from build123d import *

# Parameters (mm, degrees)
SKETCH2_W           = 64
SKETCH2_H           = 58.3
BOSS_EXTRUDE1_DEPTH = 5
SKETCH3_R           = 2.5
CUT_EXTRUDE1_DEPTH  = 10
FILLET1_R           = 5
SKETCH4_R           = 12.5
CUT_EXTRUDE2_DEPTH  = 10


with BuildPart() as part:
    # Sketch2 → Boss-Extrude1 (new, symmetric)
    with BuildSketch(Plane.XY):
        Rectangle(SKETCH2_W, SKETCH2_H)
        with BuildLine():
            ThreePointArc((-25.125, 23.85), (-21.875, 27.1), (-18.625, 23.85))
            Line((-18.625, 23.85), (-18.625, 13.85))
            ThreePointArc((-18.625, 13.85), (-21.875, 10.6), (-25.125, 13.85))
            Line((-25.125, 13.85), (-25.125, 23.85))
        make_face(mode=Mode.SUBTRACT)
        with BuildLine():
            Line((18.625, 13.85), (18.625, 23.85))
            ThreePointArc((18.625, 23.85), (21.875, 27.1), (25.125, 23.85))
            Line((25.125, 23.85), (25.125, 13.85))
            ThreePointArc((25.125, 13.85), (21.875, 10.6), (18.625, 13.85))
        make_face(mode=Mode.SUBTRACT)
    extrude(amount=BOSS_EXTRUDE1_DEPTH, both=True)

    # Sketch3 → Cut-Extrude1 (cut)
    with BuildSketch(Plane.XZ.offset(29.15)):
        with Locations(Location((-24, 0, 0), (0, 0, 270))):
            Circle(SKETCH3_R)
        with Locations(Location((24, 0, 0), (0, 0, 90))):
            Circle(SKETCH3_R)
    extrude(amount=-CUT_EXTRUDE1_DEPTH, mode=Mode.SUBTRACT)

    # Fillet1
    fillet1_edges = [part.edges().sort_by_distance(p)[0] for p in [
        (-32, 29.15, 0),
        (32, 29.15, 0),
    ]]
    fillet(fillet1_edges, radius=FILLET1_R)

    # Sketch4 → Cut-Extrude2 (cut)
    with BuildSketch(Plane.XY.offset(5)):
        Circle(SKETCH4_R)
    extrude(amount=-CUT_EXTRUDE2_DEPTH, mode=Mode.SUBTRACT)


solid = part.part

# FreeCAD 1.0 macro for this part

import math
import FreeCAD as App
import Part
import Sketcher
from FreeCAD import Vector
Q = App.Units.Quantity


def edges_at(feature, points):
    """Names of the edges that pass closest to the given points."""
    edges = feature.Shape.Edges
    near = lambda p: min(range(len(edges)), key=lambda i: edges[i].distToShape(Part.Vertex(*p))[0])
    return sorted({f"Edge{near(p) + 1}" for p in points})


def add_polygon(sketch, points):
    """Adds a closed chain of lines whose ends are joined by coincident constraints."""
    first, n = sketch.GeometryCount, len(points)
    for a, b in zip(points, points[1:] + points[:1]):
        sketch.addGeometry(Part.LineSegment(App.Vector(*a, 0), App.Vector(*b, 0)), False)
    for i in range(n):
        sketch.addConstraint(Sketcher.Constraint("Coincident", first + i, 2, first + (i + 1) % n, 1))

doc = App.newDocument("Part")
body = doc.addObject("PartDesign::Body", "Body")

# Sketch on XY plane
sketch1 = doc.addObject("Sketcher::SketchObject", "Sketch")
body.addObject(sketch1)
sketch1.AttachmentSupport = (doc.XY_Plane, [""])
sketch1.MapMode = "FlatFace"
add_polygon(sketch1, [(-32, 29.1), (-32, -29.1), (32, -29.1), (32, 29.1)])  # lines 0-3
sketch1.addGeometry(Part.LineSegment(Vector(-25.1, 13.8, 0), Vector(-25.1, 23.9, 0)), False)  # 4
sketch1.addGeometry(Part.ArcOfCircle(Part.Circle(Vector(-21.9, 23.9, 0), Vector(0, 0, 1), 3.2), math.radians(0), math.radians(180)), False)  # 5
sketch1.addGeometry(Part.LineSegment(Vector(-18.6, 23.9, 0), Vector(-18.6, 13.8, 0)), False)  # 6
sketch1.addGeometry(Part.ArcOfCircle(Part.Circle(Vector(-21.9, 13.8, 0), Vector(0, 0, 1), 3.2), math.radians(180), math.radians(360)), False)  # 7
sketch1.addGeometry(Part.ArcOfCircle(Part.Circle(Vector(21.9, 13.8, 0), Vector(0, 0, 1), 3.2), math.radians(180), math.radians(360)), False)  # 8
sketch1.addGeometry(Part.LineSegment(Vector(18.6, 13.8, 0), Vector(18.6, 23.9, 0)), False)  # 9
sketch1.addGeometry(Part.ArcOfCircle(Part.Circle(Vector(21.9, 23.9, 0), Vector(0, 0, 1), 3.2), math.radians(0), math.radians(180)), False)  # 10
sketch1.addGeometry(Part.LineSegment(Vector(25.1, 23.9, 0), Vector(25.1, 13.8, 0)), False)  # 11
sketch1.addConstraint([
    Sketcher.Constraint("Tangent", 4, 2, 5, 2),
    Sketcher.Constraint("Tangent", 5, 1, 6, 1),
    Sketcher.Constraint("Tangent", 6, 2, 7, 2),
    Sketcher.Constraint("Tangent", 7, 1, 4, 1),
    Sketcher.Constraint("Tangent", 8, 1, 9, 1),
    Sketcher.Constraint("Tangent", 9, 2, 10, 2),
    Sketcher.Constraint("Tangent", 10, 1, 11, 1),
    Sketcher.Constraint("Tangent", 11, 2, 8, 2),
    Sketcher.Constraint("Vertical", 0),
    Sketcher.Constraint("Horizontal", 1),
    Sketcher.Constraint("Vertical", 2),
    Sketcher.Constraint("Horizontal", 3),
    Sketcher.Constraint("Vertical", 4),
    Sketcher.Constraint("Vertical", 6),
    Sketcher.Constraint("Vertical", 9),
    Sketcher.Constraint("Vertical", 11),
    Sketcher.Constraint("Equal", 7, 8),
    Sketcher.Constraint("Symmetric", 0, 2, 2, 2, -1, 1),
    Sketcher.Constraint("Symmetric", 7, 3, 8, 3, -2),
    Sketcher.Constraint("Horizontal", 5, 3, 10, 3),
    Sketcher.Constraint("DistanceX", 1, 1, 1, 2, Q("64 mm")),
    Sketcher.Constraint("DistanceY", 4, 1, 4, 2, Q("10 mm")),
    Sketcher.Constraint("Radius", 5, Q("3.25 mm")),
    Sketcher.Constraint("DistanceY", 0, 2, 0, 1, Q("58.3 mm")),
    Sketcher.Constraint("DistanceY", 0, 2, 7, 3, Q("43 mm")),
    Sketcher.Constraint("DistanceX", 4, 2, 10, 3, Q("47 mm")),
])
pad1 = doc.addObject("PartDesign::Pad", "Pad")
body.addObject(pad1)
pad1.Profile = sketch1
pad1.Length = 10
pad1.Midplane = True

# Sketch on XZ plane
sketch2 = doc.addObject("Sketcher::SketchObject", "Sketch001")
body.addObject(sketch2)
sketch2.AttachmentSupport = (doc.XZ_Plane, [""])
sketch2.MapMode = "FlatFace"
sketch2.AttachmentOffset = App.Placement(Vector(0, 0, 29.15), App.Rotation())
sketch2.addGeometry([
    Part.Circle(Vector(-24, 0, 0), Vector(0, 0, 1), 2.5),
    Part.Circle(Vector(24, 0, 0), Vector(0, 0, 1), 2.5),
], False)
sketch2.addConstraint([
    Sketcher.Constraint("Equal", 0, 1),
    Sketcher.Constraint("Symmetric", 0, 3, 1, 3, -1, 1),
    Sketcher.Constraint("PointOnObject", 0, 3, -1),
    Sketcher.Constraint("Diameter", 0, Q("5 mm")),
    Sketcher.Constraint("DistanceX", 0, 3, -1, 1, Q("24 mm")),
])
pocket1 = doc.addObject("PartDesign::Pocket", "Pocket")
body.addObject(pocket1)
pocket1.Profile = sketch2
pocket1.Length = 10
doc.recompute()

fillet = doc.addObject("PartDesign::Fillet", "Fillet")
body.addObject(fillet)
fillet.Base = (pocket1, edges_at(pocket1, [(-32, 29.15, 0), (32, 29.15, 0)]))
fillet.Radius = 5

# Sketch on XY plane
sketch3 = doc.addObject("Sketcher::SketchObject", "Sketch002")
body.addObject(sketch3)
sketch3.AttachmentSupport = (doc.XY_Plane, [""])
sketch3.MapMode = "FlatFace"
sketch3.AttachmentOffset = App.Placement(Vector(0, 0, 5), App.Rotation())
sketch3.addGeometry(Part.Circle(Vector(0, 0, 0), Vector(0, 0, 1), 12), False)
sketch3.addConstraint([
    Sketcher.Constraint("Coincident", 0, 3, -1, 1),
    Sketcher.Constraint("Diameter", 0, Q("25 mm")),
])
pocket2 = doc.addObject("PartDesign::Pocket", "Pocket001")
body.addObject(pocket2)
pocket2.Profile = sketch3
pocket2.Length = 10

doc.recompute()
